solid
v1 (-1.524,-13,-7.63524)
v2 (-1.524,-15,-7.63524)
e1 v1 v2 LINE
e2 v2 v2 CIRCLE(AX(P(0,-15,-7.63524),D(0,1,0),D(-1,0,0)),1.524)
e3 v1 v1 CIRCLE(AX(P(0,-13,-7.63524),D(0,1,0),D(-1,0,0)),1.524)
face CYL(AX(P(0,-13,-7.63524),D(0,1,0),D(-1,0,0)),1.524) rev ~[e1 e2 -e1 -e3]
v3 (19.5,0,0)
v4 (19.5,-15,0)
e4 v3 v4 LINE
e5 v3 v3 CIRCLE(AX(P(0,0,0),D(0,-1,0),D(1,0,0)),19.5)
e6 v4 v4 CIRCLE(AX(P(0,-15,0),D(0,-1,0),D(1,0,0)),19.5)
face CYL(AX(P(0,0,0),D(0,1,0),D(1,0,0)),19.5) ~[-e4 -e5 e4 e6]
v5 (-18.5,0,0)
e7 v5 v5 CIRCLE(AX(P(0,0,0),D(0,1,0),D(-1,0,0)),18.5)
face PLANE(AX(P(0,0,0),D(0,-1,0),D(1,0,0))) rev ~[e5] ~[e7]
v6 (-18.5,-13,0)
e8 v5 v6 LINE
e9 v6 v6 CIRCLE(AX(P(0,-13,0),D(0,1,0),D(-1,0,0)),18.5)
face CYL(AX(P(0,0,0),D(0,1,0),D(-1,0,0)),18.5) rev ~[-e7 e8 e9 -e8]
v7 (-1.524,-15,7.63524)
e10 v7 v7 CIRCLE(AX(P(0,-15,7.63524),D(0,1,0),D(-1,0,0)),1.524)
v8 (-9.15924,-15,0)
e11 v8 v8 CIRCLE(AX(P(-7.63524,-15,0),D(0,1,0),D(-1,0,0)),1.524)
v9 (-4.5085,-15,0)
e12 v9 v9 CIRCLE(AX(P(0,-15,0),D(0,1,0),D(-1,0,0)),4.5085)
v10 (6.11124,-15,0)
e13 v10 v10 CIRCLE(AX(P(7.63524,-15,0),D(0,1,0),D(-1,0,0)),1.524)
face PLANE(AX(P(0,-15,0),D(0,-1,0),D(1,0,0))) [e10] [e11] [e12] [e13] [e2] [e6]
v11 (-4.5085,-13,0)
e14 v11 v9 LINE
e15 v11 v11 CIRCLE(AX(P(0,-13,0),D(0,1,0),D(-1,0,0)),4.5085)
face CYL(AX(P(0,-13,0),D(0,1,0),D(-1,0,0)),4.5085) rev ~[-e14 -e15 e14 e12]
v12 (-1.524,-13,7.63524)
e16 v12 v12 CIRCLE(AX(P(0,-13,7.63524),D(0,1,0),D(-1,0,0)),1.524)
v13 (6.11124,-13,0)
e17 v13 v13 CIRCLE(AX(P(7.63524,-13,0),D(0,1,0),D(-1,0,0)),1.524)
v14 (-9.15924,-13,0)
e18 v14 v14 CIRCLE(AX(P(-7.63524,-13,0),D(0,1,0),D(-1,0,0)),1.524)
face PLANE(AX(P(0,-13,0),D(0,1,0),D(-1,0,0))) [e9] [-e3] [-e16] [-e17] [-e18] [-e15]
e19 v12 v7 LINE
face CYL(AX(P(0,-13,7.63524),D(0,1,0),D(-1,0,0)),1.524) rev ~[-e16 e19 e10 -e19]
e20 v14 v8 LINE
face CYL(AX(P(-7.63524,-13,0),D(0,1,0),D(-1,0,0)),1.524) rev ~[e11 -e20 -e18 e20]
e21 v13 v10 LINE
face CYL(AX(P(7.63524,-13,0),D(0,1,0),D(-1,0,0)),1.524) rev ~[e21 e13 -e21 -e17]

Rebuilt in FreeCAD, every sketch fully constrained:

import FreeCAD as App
import Part
import Sketcher

V = App.Vector

doc = App.newDocument("Part")
body = doc.addObject("PartDesign::Body", "Body")

# Sketch on XZ plane
sketch1 = body.newObject("Sketcher::SketchObject", "Sketch")
sketch1.AttachmentSupport = (doc.getObject("XZ_Plane"), [""])
sketch1.MapMode = "FlatFace"
sketch1.addGeometry(Part.Circle(V(0, 0, 0), V(0, 0, 1), 20), False)
sketch1.addConstraint(Sketcher.Constraint("Coincident", 0, 3, -1, 1))
sketch1.addConstraint(Sketcher.Constraint("Diameter", 0, 39.0))
pad1 = body.newObject("PartDesign::Pad", "Pad")
pad1.Profile = sketch1
pad1.Length = 15

# Sketch on XZ plane
sketch2 = body.newObject("Sketcher::SketchObject", "Sketch001")
sketch2.AttachmentSupport = (doc.getObject("XZ_Plane"), [""])
sketch2.MapMode = "FlatFace"
sketch2.addGeometry(Part.Circle(V(0, 0, 0), V(0, 0, 1), 18), False)
sketch2.addConstraint(Sketcher.Constraint("Coincident", 0, 3, -1, 1))
sketch2.addConstraint(Sketcher.Constraint("Diameter", 0, 37.0))
pocket1 = body.newObject("PartDesign::Pocket", "Pocket")
pocket1.Profile = sketch2
pocket1.Length = 13
pocket1.Reversed = True

# Sketch on XZ plane
sketch3 = body.newObject("Sketcher::SketchObject", "Sketch002")
sketch3.AttachmentSupport = (doc.getObject("XZ_Plane"), [""])
sketch3.MapMode = "FlatFace"
sketch3.AttachmentOffset = App.Placement(V(0, 0, 13), App.Rotation())
sketch3.addGeometry(Part.Circle(V(0, 0, 0), V(0, 0, 1), 4.5), False)
sketch3.addGeometry(Part.Circle(V(0, 7.6, 0), V(0, 0, 1), 1.5), False)
sketch3.addGeometry(Part.Circle(V(7.6, 0, 0), V(0, 0, 1), 1.5), False)
sketch3.addGeometry(Part.Circle(V(0, -7.6, 0), V(0, 0, 1), 1.5), False)
sketch3.addGeometry(Part.Circle(V(-7.6, 0, 0), V(0, 0, 1), 1.5), False)
sketch3.addConstraint(Sketcher.Constraint("Coincident", 0, 3, -1, 1))
sketch3.addConstraint(Sketcher.Constraint("Equal", 1, 2))
sketch3.addConstraint(Sketcher.Constraint("Equal", 2, 3))
sketch3.addConstraint(Sketcher.Constraint("Equal", 3, 4))
sketch3.addConstraint(Sketcher.Constraint("Symmetric", 1, 3, 3, 3, -1, 1))
sketch3.addConstraint(Sketcher.Constraint("Symmetric", 2, 3, 4, 3, -1, 1))
sketch3.addConstraint(Sketcher.Constraint("PointOnObject", 1, 3, -2))
sketch3.addConstraint(Sketcher.Constraint("PointOnObject", 2, 3, -1))
sketch3.addConstraint(Sketcher.Constraint("Diameter", 0, 9.017))
sketch3.addConstraint(Sketcher.Constraint("Diameter", 1, 3.048))
sketch3.addConstraint(Sketcher.Constraint("DistanceY", -1, 1, 1, 3, 7.63524))
sketch3.addConstraint(Sketcher.Constraint("DistanceX", -1, 1, 2, 3, 7.63524))
pocket2 = body.newObject("PartDesign::Pocket", "Pocket001")
pocket2.Profile = sketch3
pocket2.Type = "ThroughAll"
pocket2.Reversed = True

doc.recompute()
